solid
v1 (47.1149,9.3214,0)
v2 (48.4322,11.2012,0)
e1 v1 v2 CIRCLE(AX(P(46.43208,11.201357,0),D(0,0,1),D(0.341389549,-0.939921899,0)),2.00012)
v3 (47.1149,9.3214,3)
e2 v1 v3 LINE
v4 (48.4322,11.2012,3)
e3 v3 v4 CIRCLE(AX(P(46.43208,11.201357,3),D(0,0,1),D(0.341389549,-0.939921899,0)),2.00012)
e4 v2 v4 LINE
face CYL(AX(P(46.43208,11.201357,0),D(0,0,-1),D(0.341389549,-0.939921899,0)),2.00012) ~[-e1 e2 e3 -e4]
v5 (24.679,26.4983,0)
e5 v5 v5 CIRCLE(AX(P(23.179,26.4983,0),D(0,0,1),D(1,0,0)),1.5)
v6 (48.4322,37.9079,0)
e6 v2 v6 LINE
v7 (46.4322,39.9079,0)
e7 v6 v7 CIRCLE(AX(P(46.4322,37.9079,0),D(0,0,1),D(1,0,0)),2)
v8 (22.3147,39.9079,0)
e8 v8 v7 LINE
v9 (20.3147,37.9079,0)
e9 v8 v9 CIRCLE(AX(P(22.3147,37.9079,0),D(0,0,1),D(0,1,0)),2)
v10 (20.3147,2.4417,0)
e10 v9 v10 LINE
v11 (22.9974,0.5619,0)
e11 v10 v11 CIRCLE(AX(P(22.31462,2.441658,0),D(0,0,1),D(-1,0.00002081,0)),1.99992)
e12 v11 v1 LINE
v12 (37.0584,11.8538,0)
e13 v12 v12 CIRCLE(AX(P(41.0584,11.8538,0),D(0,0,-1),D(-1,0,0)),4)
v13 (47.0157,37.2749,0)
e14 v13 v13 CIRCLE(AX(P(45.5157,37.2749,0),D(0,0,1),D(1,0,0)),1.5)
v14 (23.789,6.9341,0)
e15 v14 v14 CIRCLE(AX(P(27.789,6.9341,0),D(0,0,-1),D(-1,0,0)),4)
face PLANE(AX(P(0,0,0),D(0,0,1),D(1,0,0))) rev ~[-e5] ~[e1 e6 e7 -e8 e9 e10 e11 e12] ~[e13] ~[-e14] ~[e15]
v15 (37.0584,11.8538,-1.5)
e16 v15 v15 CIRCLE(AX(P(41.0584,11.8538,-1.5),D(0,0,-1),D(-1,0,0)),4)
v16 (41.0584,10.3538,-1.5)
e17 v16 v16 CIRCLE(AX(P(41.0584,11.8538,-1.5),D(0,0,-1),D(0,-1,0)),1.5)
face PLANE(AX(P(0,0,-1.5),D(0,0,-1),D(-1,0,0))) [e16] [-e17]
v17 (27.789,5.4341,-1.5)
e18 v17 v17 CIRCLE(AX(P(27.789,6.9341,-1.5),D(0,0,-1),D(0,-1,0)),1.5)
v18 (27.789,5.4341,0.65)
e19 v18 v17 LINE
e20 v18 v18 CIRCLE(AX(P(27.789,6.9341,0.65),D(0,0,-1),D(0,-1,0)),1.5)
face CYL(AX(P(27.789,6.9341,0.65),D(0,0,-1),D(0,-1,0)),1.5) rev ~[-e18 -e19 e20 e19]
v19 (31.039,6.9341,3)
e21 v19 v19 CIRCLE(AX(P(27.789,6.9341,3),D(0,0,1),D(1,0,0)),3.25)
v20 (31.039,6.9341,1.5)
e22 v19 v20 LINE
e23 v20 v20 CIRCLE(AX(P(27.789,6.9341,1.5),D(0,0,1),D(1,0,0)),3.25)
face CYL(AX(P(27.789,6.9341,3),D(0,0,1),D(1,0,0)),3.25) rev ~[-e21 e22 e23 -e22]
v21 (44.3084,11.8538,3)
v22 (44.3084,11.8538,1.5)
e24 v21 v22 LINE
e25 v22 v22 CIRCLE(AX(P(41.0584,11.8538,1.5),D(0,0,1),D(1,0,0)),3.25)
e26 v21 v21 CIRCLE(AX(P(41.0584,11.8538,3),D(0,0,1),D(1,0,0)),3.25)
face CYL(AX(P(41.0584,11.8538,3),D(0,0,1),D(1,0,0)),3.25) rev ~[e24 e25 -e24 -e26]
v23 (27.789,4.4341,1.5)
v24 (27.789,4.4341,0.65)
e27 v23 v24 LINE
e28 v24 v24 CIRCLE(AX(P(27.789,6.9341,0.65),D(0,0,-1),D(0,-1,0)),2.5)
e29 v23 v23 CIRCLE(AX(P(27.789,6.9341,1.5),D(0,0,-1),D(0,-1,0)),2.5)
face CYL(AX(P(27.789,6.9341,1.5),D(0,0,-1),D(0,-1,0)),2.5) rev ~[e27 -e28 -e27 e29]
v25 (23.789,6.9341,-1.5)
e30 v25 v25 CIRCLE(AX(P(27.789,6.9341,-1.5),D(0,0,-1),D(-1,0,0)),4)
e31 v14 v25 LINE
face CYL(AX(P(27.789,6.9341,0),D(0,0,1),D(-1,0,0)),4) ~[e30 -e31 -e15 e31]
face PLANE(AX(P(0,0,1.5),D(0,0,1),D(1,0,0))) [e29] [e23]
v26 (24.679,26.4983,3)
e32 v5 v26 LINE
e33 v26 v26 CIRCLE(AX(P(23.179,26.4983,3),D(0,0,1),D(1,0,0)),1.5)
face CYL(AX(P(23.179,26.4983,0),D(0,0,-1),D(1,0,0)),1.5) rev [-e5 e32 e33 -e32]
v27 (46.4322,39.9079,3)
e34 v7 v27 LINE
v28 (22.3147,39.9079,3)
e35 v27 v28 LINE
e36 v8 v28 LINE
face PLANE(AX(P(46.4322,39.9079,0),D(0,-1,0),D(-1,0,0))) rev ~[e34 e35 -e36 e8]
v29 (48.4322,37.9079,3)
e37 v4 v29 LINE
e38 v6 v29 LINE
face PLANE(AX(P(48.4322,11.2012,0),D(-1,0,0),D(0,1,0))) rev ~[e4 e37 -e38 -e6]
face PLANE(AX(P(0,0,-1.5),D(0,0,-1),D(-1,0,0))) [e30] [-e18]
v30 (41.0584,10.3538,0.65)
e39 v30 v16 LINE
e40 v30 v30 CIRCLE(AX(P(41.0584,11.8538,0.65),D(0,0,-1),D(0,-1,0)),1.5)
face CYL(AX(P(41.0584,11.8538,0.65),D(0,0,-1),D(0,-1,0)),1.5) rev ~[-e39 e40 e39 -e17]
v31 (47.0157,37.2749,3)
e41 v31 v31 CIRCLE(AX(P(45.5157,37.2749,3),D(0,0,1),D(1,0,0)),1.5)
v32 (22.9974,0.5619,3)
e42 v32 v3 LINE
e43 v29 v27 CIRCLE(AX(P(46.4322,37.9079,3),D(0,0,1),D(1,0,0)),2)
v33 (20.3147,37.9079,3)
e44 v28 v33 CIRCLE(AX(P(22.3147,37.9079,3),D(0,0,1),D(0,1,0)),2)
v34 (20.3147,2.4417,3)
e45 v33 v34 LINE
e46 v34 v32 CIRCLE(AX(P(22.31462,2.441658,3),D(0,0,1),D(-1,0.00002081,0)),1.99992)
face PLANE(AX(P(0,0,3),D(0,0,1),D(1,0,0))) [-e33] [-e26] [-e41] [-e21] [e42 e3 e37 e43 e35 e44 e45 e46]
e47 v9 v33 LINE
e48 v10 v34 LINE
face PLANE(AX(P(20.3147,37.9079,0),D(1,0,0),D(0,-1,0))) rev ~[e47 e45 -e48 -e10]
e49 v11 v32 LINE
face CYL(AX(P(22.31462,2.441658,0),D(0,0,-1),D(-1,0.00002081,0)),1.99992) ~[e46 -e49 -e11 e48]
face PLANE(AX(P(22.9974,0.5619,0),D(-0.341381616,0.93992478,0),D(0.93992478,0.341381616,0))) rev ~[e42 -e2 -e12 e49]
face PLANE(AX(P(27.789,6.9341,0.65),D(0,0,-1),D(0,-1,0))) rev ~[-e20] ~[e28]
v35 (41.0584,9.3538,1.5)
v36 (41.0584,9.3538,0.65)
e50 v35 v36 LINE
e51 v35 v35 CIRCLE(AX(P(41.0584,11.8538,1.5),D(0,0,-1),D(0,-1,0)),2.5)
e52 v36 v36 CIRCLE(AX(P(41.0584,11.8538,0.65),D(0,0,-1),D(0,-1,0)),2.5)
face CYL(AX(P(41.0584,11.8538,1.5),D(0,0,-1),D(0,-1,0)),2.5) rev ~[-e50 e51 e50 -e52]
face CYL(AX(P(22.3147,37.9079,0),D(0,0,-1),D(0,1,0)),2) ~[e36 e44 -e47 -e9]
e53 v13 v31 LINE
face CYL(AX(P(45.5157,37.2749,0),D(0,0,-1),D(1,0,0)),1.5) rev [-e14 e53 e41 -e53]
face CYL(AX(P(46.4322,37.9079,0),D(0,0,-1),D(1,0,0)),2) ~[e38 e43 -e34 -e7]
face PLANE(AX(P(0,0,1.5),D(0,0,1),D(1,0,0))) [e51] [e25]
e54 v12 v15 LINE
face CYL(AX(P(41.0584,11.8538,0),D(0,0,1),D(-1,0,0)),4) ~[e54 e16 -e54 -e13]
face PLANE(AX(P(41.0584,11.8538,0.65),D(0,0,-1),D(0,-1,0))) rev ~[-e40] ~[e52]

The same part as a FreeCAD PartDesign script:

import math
import FreeCAD as App
import Part
import Sketcher

V = App.Vector
Q = App.Units.Quantity

doc = App.newDocument("Part")
body = doc.addObject("PartDesign::Body", "Body")

# Sketch on XY plane
sketch1 = doc.addObject("Sketcher::SketchObject", "Sketch")
body.addObject(sketch1)
sketch1.AttachmentSupport = (doc.XY_Plane, [""])
sketch1.MapMode = "FlatFace"
sketch1.addGeometry(Part.ArcOfCircle(Part.Circle(V(46.4, 11.2, 0), V(0, 0, 1), 2), math.radians(-70), math.radians(0)), False)
sketch1.addGeometry(Part.LineSegment(V(48.4, 11.2, 0), V(48.4, 37.9, 0)), False)
sketch1.addGeometry(Part.ArcOfCircle(Part.Circle(V(46.4, 37.9, 0), V(0, 0, 1), 2), math.radians(0), math.radians(90)), False)
sketch1.addGeometry(Part.LineSegment(V(46.4, 39.9, 0), V(22.3, 39.9, 0)), False)
sketch1.addGeometry(Part.ArcOfCircle(Part.Circle(V(22.3, 37.9, 0), V(0, 0, 1), 2), math.radians(90), math.radians(180)), False)
sketch1.addGeometry(Part.LineSegment(V(20.3, 37.9, 0), V(20.3, 2.4, 0)), False)
sketch1.addGeometry(Part.ArcOfCircle(Part.Circle(V(22.3, 2.4, 0), V(0, 0, 1), 2), math.radians(180), math.radians(290)), False)
sketch1.addGeometry(Part.LineSegment(V(23, 0.6, 0), V(47.1, 9.3, 0)), False)
sketch1.addGeometry(Part.Circle(V(23.2, 26.5, 0), V(0, 0, 1), 1.5), False)
sketch1.addGeometry(Part.Circle(V(45.5, 37.3, 0), V(0, 0, 1), 1.5), False)
sketch1.addConstraint(Sketcher.Constraint("Tangent", 0, 2, 1, 1))
sketch1.addConstraint(Sketcher.Constraint("Tangent", 1, 2, 2, 1))
sketch1.addConstraint(Sketcher.Constraint("Tangent", 2, 2, 3, 1))
sketch1.addConstraint(Sketcher.Constraint("Tangent", 3, 2, 4, 1))
sketch1.addConstraint(Sketcher.Constraint("Tangent", 4, 2, 5, 1))
sketch1.addConstraint(Sketcher.Constraint("Tangent", 5, 2, 6, 1))
sketch1.addConstraint(Sketcher.Constraint("Tangent", 6, 2, 7, 1))
sketch1.addConstraint(Sketcher.Constraint("Tangent", 7, 2, 0, 1))
sketch1.addConstraint(Sketcher.Constraint("Vertical", 1))
sketch1.addConstraint(Sketcher.Constraint("Horizontal", 3))
sketch1.addConstraint(Sketcher.Constraint("Vertical", 5))
sketch1.addConstraint(Sketcher.Constraint("Equal", 0, 2))
sketch1.addConstraint(Sketcher.Constraint("Equal", 2, 4))
sketch1.addConstraint(Sketcher.Constraint("Equal", 4, 6))
sketch1.addConstraint(Sketcher.Constraint("Equal", 8, 9))
sketch1.addConstraint(Sketcher.Constraint("Diameter", 8, Q("3 mm")))
sketch1.addConstraint(Sketcher.Constraint("Radius", 0, Q("2 mm")))
sketch1.addConstraint(Sketcher.Constraint("Angle", 7, Q("19.961 deg")))
sketch1.addConstraint(Sketcher.Constraint("DistanceX", 5, 2, 0, 2, Q("28.1174 mm")))
sketch1.addConstraint(Sketcher.Constraint("DistanceY", 1, 1, 1, 2, Q("26.7067 mm")))
sketch1.addConstraint(Sketcher.Constraint("DistanceY", -1, 1, 2, 3, Q("37.908 mm")))
sketch1.addConstraint(Sketcher.Constraint("DistanceX", -1, 1, 8, 3, Q("23.179 mm")))
sketch1.addConstraint(Sketcher.Constraint("DistanceY", -1, 1, 9, 3, Q("37.275 mm")))
sketch1.addConstraint(Sketcher.Constraint("DistanceX", -1, 1, 7, 2, Q("47.115 mm")))
sketch1.addConstraint(Sketcher.Constraint("DistanceY", 0, 3, 8, 3, Q("15.297 mm")))
sketch1.addConstraint(Sketcher.Constraint("DistanceX", 4, 3, 9, 3, Q("23.201 mm")))
pad1 = doc.addObject("PartDesign::Pad", "Pad")
body.addObject(pad1)
pad1.Profile = sketch1
pad1.Length = 3

# Sketch on XY plane
sketch2 = doc.addObject("Sketcher::SketchObject", "Sketch001")
body.addObject(sketch2)
sketch2.AttachmentSupport = (doc.XY_Plane, [""])
sketch2.MapMode = "FlatFace"
sketch2.addGeometry(Part.Circle(V(41.1, 11.9, 0), V(0, 0, 1), 4), False)
sketch2.addGeometry(Part.Circle(V(27.8, 6.9, 0), V(0, 0, 1), 4), False)
sketch2.addConstraint(Sketcher.Constraint("Equal", 0, 1))
sketch2.addConstraint(Sketcher.Constraint("Diameter", 0, Q("8 mm")))
sketch2.addConstraint(Sketcher.Constraint("DistanceX", -1, 1, 1, 3, Q("27.789 mm")))
sketch2.addConstraint(Sketcher.Constraint("DistanceY", -1, 1, 1, 3, Q("6.934 mm")))
sketch2.addConstraint(Sketcher.Constraint("DistanceX", -1, 1, 0, 3, Q("41.0584 mm")))
sketch2.addConstraint(Sketcher.Constraint("DistanceY", -1, 1, 0, 3, Q("11.8538 mm")))
pad2 = doc.addObject("PartDesign::Pad", "Pad001")
body.addObject(pad2)
pad2.Profile = sketch2
pad2.Length = 1.5
pad2.Reversed = True

# Sketch on XY plane
sketch3 = doc.addObject("Sketcher::SketchObject", "Sketch002")
body.addObject(sketch3)
sketch3.AttachmentSupport = (doc.XY_Plane, [""])
sketch3.MapMode = "FlatFace"
sketch3.AttachmentOffset = App.Placement(V(0, 0, 3), App.Rotation())
sketch3.addGeometry(Part.Circle(V(41.1, 11.9, 0), V(0, 0, 1), 3.2), False)
sketch3.addGeometry(Part.Circle(V(27.8, 6.9, 0), V(0, 0, 1), 3.2), False)
sketch3.addConstraint(Sketcher.Constraint("Equal", 0, 1))
sketch3.addConstraint(Sketcher.Constraint("Diameter", 0, Q("6.5 mm")))
sketch3.addConstraint(Sketcher.Constraint("DistanceX", -1, 1, 1, 3, Q("27.789 mm")))
sketch3.addConstraint(Sketcher.Constraint("DistanceY", -1, 1, 1, 3, Q("6.934 mm")))
sketch3.addConstraint(Sketcher.Constraint("DistanceX", -1, 1, 0, 3, Q("41.0584 mm")))
sketch3.addConstraint(Sketcher.Constraint("DistanceY", -1, 1, 0, 3, Q("11.8538 mm")))
pocket1 = doc.addObject("PartDesign::Pocket", "Pocket")
body.addObject(pocket1)
pocket1.Profile = sketch3
pocket1.Length = 1.5

# Sketch on XY plane
sketch4 = doc.addObject("Sketcher::SketchObject", "Sketch003")
body.addObject(sketch4)
sketch4.AttachmentSupport = (doc.XY_Plane, [""])
sketch4.MapMode = "FlatFace"
sketch4.AttachmentOffset = App.Placement(V(0, 0, 1.5), App.Rotation())
sketch4.addGeometry(Part.Circle(V(27.8, 6.9, 0), V(0, 0, 1), 1.5), False)
sketch4.addGeometry(Part.Circle(V(41.1, 11.9, 0), V(0, 0, 1), 1.5), False)
sketch4.addConstraint(Sketcher.Constraint("Equal", 0, 1))
sketch4.addConstraint(Sketcher.Constraint("Diameter", 0, Q("3 mm")))
sketch4.addConstraint(Sketcher.Constraint("DistanceX", -1, 1, 0, 3, Q("27.789 mm")))
sketch4.addConstraint(Sketcher.Constraint("DistanceY", -1, 1, 0, 3, Q("6.934 mm")))
sketch4.addConstraint(Sketcher.Constraint("DistanceX", -1, 1, 1, 3, Q("41.0584 mm")))
sketch4.addConstraint(Sketcher.Constraint("DistanceY", -1, 1, 1, 3, Q("11.8538 mm")))
doc.recompute()
hole = doc.addObject("PartDesign::Hole", "Hole")
body.addObject(hole)
hole.Profile = sketch4
hole.ThreadType = "None"
hole.Diameter = 3
hole.DepthType = "Dimension"
hole.Depth = 3
hole.DrillPoint = "Angled"
hole.DrillPointAngle = 118
hole.HoleCutType = "Counterbore"
hole.HoleCutDiameter = 5
hole.HoleCutDepth = 0.85

doc.recompute()
